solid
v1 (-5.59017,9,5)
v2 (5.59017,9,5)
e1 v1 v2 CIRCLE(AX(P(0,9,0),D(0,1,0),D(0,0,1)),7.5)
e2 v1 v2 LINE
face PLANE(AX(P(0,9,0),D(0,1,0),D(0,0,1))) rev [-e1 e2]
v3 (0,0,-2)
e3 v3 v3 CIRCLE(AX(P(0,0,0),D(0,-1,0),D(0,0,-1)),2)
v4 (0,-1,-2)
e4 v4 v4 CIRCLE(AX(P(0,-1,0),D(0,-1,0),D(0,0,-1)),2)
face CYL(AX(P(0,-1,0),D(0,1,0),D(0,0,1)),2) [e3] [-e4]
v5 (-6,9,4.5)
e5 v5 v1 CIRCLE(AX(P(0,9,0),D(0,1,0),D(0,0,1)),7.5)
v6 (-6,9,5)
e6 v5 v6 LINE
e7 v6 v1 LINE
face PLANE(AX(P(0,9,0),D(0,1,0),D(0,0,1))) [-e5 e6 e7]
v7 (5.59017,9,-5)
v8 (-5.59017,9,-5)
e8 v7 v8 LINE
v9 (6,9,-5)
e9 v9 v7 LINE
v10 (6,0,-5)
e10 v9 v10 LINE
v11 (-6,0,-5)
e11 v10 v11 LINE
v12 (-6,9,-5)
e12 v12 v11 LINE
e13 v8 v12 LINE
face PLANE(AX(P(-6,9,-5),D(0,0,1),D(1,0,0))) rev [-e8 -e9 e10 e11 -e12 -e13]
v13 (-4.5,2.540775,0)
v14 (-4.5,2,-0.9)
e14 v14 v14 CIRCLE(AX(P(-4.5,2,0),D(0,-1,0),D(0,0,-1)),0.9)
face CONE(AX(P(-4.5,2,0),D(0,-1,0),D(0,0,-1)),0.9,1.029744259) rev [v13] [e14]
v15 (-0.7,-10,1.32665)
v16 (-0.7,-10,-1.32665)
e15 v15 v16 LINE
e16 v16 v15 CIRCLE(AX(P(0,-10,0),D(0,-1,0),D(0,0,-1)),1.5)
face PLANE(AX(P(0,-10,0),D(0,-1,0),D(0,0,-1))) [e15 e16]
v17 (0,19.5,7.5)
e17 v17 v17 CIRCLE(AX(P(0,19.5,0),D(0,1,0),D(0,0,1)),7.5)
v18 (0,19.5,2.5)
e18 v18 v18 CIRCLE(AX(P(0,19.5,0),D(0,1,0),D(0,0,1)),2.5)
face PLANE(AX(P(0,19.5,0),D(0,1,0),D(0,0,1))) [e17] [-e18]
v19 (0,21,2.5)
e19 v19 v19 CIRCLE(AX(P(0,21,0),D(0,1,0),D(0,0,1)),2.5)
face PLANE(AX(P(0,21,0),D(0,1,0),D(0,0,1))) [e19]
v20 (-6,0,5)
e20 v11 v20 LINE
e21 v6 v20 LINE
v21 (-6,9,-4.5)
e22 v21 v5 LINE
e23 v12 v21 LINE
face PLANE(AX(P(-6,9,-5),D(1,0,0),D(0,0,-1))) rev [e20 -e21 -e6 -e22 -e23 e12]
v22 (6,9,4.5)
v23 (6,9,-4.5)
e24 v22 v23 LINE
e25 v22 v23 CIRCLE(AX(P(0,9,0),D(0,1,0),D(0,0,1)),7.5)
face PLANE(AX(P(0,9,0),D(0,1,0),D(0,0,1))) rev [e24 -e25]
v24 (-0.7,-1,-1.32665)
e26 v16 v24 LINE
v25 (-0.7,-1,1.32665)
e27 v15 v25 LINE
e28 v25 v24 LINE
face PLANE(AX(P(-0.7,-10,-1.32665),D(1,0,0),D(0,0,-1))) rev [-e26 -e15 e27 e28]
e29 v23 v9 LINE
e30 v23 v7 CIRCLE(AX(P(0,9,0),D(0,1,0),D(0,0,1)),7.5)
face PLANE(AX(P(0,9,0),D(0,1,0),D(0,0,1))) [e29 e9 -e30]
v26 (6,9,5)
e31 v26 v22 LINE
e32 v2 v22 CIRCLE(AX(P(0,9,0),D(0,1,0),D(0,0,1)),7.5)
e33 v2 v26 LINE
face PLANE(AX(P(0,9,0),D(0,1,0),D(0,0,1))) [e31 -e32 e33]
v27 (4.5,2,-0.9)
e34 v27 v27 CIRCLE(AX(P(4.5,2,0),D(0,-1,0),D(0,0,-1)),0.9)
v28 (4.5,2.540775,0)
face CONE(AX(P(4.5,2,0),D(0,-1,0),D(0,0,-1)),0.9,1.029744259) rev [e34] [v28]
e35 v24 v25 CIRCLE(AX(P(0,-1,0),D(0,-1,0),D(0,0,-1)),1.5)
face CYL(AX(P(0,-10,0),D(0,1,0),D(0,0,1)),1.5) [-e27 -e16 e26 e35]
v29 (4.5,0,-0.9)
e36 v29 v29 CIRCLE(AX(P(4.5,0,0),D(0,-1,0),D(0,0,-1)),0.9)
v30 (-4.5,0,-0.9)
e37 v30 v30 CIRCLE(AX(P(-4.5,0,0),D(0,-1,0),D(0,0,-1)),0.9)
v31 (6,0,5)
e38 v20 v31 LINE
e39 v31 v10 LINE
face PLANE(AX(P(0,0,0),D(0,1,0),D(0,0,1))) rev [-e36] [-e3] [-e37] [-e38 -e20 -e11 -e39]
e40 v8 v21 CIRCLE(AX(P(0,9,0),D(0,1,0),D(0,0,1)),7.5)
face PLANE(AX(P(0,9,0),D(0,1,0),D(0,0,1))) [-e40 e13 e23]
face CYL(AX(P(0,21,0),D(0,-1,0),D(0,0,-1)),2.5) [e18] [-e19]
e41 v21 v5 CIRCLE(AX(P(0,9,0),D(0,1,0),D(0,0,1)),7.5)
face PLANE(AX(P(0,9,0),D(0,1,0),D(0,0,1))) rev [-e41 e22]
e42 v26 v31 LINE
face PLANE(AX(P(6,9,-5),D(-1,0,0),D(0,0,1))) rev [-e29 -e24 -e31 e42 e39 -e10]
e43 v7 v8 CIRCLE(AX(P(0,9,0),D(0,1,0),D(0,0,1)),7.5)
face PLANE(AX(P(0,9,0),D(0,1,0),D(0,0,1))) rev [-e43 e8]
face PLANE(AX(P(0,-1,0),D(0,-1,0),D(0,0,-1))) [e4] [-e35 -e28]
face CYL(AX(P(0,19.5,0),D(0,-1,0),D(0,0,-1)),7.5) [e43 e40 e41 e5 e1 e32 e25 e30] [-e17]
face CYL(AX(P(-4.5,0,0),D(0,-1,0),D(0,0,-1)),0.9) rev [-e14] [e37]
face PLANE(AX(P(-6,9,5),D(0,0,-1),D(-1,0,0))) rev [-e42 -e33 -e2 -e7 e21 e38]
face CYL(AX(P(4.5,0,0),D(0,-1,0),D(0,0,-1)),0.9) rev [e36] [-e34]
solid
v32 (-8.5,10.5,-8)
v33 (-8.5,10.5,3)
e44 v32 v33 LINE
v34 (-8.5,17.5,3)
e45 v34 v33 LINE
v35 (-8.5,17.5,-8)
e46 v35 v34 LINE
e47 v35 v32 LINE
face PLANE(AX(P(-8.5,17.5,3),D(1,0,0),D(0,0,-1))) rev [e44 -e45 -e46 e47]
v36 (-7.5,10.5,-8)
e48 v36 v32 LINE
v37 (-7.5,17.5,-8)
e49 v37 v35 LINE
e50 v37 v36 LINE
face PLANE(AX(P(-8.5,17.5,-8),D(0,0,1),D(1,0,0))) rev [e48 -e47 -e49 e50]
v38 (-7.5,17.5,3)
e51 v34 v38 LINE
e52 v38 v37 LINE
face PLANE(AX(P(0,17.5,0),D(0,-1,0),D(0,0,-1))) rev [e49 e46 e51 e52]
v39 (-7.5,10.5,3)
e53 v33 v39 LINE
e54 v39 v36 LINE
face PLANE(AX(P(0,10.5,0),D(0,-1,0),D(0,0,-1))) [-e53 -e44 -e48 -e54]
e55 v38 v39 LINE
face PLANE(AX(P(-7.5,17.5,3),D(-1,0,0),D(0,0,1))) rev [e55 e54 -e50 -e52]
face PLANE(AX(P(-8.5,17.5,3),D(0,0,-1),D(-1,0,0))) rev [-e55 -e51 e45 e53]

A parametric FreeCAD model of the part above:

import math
import FreeCAD as App
import Part
import Sketcher

V = App.Vector
Q = App.Units.Quantity

doc = App.newDocument("Part")
body = doc.addObject("PartDesign::Body", "Body")

sketch1 = body.newObject("Sketcher::SketchObject", "Sketch")
sketch1.AttachmentSupport = (doc.getObject("XZ_Plane"), [""])
sketch1.MapMode = "FlatFace"
sketch1.addGeometry([
    Part.LineSegment(V(-6, -5, 0), V(-6, 5, 0)),
    Part.LineSegment(V(-6, 5, 0), V(6, 5, 0)),
    Part.LineSegment(V(6, 5, 0), V(6, -5, 0)),
    Part.LineSegment(V(6, -5, 0), V(-6, -5, 0)),
], False)
sketch1.addConstraint([
    Sketcher.Constraint("Coincident", 0, 2, 1, 1),
    Sketcher.Constraint("Coincident", 1, 2, 2, 1),
    Sketcher.Constraint("Coincident", 2, 2, 3, 1),
    Sketcher.Constraint("Coincident", 3, 2, 0, 1),
    Sketcher.Constraint("Vertical", 0),
    Sketcher.Constraint("Horizontal", 1),
    Sketcher.Constraint("Vertical", 2),
    Sketcher.Constraint("Horizontal", 3),
    Sketcher.Constraint("Symmetric", 0, 2, 2, 2, -1, 1),
    Sketcher.Constraint("DistanceX", 1, 1, 1, 2, Q("12 mm")),
    Sketcher.Constraint("DistanceY", 0, 1, 0, 2, Q("10 mm")),
])
pad1 = body.newObject("PartDesign::Pad", "Pad")
pad1.Profile = sketch1
pad1.Length = 9
pad1.Reversed = True

sketch2 = body.newObject("Sketcher::SketchObject", "Sketch001")
sketch2.AttachmentSupport = (doc.getObject("XZ_Plane"), [""])
sketch2.MapMode = "FlatFace"
sketch2.addGeometry(Part.Circle(V(0, 0, 0), V(0, 0, 1), 2), False)
sketch2.addConstraint([
    Sketcher.Constraint("Coincident", 0, 3, -1, 1),
    Sketcher.Constraint("Diameter", 0, Q("4 mm")),
])
pad2 = body.newObject("PartDesign::Pad", "Pad001")
pad2.Profile = sketch2
pad2.Length = 1

sketch3 = body.newObject("Sketcher::SketchObject", "Sketch002")
sketch3.AttachmentSupport = (doc.getObject("XZ_Plane"), [""])
sketch3.MapMode = "FlatFace"
sketch3.AttachmentOffset = App.Placement(V(0, 0, 1), App.Rotation())
sketch3.addGeometry([
    Part.LineSegment(V(-0.7, 1.3, 0), V(-0.7, -1.3, 0)),
    Part.ArcOfCircle(Part.Circle(V(0, 0, 0), V(0, 0, 1), 1.5), math.radians(-118), math.radians(118)),
], False)
sketch3.addConstraint([
    Sketcher.Constraint("Coincident", 0, 1, 1, 2),
    Sketcher.Constraint("Coincident", 1, 1, 0, 2),
    Sketcher.Constraint("Vertical", 0),
    Sketcher.Constraint("Coincident", 1, 3, -1, 1),
    Sketcher.Constraint("Radius", 1, Q("1.5 mm")),
    Sketcher.Constraint("DistanceX", 0, 1, -1, 1, Q("0.7 mm")),
])
pad3 = body.newObject("PartDesign::Pad", "Pad002")
pad3.Profile = sketch3
pad3.Length = 9

sketch4 = body.newObject("Sketcher::SketchObject", "Sketch003")
sketch4.AttachmentSupport = (doc.getObject("XZ_Plane"), [""])
sketch4.MapMode = "FlatFace"
sketch4.addGeometry([
    Part.Circle(V(-4.5, 0, 0), V(0, 0, 1), 0.9),
    Part.Circle(V(4.5, 0, 0), V(0, 0, 1), 0.9),
], False)
sketch4.addConstraint([
    Sketcher.Constraint("Equal", 0, 1),
    Sketcher.Constraint("Symmetric", 0, 3, 1, 3, -1, 1),
    Sketcher.Constraint("PointOnObject", 0, 3, -1),
    Sketcher.Constraint("Diameter", 0, Q("1.8 mm")),
    Sketcher.Constraint("DistanceX", 0, 3, 1, 3, Q("9 mm")),
])
doc.recompute()
hole = body.newObject("PartDesign::Hole", "Hole")
hole.Profile = sketch4
hole.ThreadType = "None"
hole.Diameter = 1.8
hole.DepthType = "Dimension"
hole.Depth = 2
hole.DrillPoint = "Angled"
hole.DrillPointAngle = 118

sketch5 = body.newObject("Sketcher::SketchObject", "Sketch004")
sketch5.AttachmentSupport = (doc.getObject("XZ_Plane"), [""])
sketch5.MapMode = "FlatFace"
sketch5.AttachmentOffset = App.Placement(V(0, 0, -9), App.Rotation())
sketch5.addGeometry(Part.Circle(V(0, 0, 0), V(0, 0, 1), 8), False)
sketch5.addConstraint([
    Sketcher.Constraint("Coincident", 0, 3, -1, 1),
    Sketcher.Constraint("Diameter", 0, Q("15 mm")),
])
pad4 = body.newObject("PartDesign::Pad", "Pad003")
pad4.Profile = sketch5
pad4.Length = 10.5
pad4.Reversed = True

sketch6 = body.newObject("Sketcher::SketchObject", "Sketch005")
sketch6.AttachmentSupport = (doc.getObject("XZ_Plane"), [""])
sketch6.MapMode = "FlatFace"
sketch6.AttachmentOffset = App.Placement(V(0, 0, -19.5), App.Rotation())
sketch6.addGeometry(Part.Circle(V(0, 0, 0), V(0, 0, 1), 2.5), False)
sketch6.addConstraint([
    Sketcher.Constraint("Coincident", 0, 3, -1, 1),
    Sketcher.Constraint("Diameter", 0, Q("5 mm")),
])
pad5 = body.newObject("PartDesign::Pad", "Pad004")
pad5.Profile = sketch6
pad5.Length = 1.5
pad5.Reversed = True
body2 = doc.addObject("PartDesign::Body", "Body001")

sketch7 = body2.newObject("Sketcher::SketchObject", "Sketch006")
sketch7.AttachmentSupport = (doc.getObject("XZ_Plane001"), [""])
sketch7.MapMode = "FlatFace"
sketch7.AttachmentOffset = App.Placement(V(0, 0, -14), App.Rotation())
sketch7.addGeometry([
    Part.LineSegment(V(-8.5, -8, 0), V(-8.5, 3, 0)),
    Part.LineSegment(V(-8.5, 3, 0), V(-7.5, 3, 0)),
    Part.LineSegment(V(-7.5, 3, 0), V(-7.5, -8, 0)),
    Part.LineSegment(V(-7.5, -8, 0), V(-8.5, -8, 0)),
], False)
sketch7.addConstraint([
    Sketcher.Constraint("Coincident", 0, 2, 1, 1),
    Sketcher.Constraint("Coincident", 1, 2, 2, 1),
    Sketcher.Constraint("Coincident", 2, 2, 3, 1),
    Sketcher.Constraint("Coincident", 3, 2, 0, 1),
    Sketcher.Constraint("Vertical", 0),
    Sketcher.Constraint("Horizontal", 1),
    Sketcher.Constraint("Vertical", 2),
    Sketcher.Constraint("Horizontal", 3),
    Sketcher.Constraint("DistanceX", 1, 1, 1, 2, Q("1 mm")),
    Sketcher.Constraint("DistanceY", 0, 1, 0, 2, Q("11 mm")),
    Sketcher.Constraint("DistanceY", -1, 1, 0, 2, Q("3 mm")),
    Sketcher.Constraint("DistanceX", 0, 2, -1, 1, Q("8.5 mm")),
])
pad6 = body2.newObject("PartDesign::Pad", "Pad005")
pad6.Profile = sketch7
pad6.Length = 7
pad6.Midplane = True

doc.recompute()
